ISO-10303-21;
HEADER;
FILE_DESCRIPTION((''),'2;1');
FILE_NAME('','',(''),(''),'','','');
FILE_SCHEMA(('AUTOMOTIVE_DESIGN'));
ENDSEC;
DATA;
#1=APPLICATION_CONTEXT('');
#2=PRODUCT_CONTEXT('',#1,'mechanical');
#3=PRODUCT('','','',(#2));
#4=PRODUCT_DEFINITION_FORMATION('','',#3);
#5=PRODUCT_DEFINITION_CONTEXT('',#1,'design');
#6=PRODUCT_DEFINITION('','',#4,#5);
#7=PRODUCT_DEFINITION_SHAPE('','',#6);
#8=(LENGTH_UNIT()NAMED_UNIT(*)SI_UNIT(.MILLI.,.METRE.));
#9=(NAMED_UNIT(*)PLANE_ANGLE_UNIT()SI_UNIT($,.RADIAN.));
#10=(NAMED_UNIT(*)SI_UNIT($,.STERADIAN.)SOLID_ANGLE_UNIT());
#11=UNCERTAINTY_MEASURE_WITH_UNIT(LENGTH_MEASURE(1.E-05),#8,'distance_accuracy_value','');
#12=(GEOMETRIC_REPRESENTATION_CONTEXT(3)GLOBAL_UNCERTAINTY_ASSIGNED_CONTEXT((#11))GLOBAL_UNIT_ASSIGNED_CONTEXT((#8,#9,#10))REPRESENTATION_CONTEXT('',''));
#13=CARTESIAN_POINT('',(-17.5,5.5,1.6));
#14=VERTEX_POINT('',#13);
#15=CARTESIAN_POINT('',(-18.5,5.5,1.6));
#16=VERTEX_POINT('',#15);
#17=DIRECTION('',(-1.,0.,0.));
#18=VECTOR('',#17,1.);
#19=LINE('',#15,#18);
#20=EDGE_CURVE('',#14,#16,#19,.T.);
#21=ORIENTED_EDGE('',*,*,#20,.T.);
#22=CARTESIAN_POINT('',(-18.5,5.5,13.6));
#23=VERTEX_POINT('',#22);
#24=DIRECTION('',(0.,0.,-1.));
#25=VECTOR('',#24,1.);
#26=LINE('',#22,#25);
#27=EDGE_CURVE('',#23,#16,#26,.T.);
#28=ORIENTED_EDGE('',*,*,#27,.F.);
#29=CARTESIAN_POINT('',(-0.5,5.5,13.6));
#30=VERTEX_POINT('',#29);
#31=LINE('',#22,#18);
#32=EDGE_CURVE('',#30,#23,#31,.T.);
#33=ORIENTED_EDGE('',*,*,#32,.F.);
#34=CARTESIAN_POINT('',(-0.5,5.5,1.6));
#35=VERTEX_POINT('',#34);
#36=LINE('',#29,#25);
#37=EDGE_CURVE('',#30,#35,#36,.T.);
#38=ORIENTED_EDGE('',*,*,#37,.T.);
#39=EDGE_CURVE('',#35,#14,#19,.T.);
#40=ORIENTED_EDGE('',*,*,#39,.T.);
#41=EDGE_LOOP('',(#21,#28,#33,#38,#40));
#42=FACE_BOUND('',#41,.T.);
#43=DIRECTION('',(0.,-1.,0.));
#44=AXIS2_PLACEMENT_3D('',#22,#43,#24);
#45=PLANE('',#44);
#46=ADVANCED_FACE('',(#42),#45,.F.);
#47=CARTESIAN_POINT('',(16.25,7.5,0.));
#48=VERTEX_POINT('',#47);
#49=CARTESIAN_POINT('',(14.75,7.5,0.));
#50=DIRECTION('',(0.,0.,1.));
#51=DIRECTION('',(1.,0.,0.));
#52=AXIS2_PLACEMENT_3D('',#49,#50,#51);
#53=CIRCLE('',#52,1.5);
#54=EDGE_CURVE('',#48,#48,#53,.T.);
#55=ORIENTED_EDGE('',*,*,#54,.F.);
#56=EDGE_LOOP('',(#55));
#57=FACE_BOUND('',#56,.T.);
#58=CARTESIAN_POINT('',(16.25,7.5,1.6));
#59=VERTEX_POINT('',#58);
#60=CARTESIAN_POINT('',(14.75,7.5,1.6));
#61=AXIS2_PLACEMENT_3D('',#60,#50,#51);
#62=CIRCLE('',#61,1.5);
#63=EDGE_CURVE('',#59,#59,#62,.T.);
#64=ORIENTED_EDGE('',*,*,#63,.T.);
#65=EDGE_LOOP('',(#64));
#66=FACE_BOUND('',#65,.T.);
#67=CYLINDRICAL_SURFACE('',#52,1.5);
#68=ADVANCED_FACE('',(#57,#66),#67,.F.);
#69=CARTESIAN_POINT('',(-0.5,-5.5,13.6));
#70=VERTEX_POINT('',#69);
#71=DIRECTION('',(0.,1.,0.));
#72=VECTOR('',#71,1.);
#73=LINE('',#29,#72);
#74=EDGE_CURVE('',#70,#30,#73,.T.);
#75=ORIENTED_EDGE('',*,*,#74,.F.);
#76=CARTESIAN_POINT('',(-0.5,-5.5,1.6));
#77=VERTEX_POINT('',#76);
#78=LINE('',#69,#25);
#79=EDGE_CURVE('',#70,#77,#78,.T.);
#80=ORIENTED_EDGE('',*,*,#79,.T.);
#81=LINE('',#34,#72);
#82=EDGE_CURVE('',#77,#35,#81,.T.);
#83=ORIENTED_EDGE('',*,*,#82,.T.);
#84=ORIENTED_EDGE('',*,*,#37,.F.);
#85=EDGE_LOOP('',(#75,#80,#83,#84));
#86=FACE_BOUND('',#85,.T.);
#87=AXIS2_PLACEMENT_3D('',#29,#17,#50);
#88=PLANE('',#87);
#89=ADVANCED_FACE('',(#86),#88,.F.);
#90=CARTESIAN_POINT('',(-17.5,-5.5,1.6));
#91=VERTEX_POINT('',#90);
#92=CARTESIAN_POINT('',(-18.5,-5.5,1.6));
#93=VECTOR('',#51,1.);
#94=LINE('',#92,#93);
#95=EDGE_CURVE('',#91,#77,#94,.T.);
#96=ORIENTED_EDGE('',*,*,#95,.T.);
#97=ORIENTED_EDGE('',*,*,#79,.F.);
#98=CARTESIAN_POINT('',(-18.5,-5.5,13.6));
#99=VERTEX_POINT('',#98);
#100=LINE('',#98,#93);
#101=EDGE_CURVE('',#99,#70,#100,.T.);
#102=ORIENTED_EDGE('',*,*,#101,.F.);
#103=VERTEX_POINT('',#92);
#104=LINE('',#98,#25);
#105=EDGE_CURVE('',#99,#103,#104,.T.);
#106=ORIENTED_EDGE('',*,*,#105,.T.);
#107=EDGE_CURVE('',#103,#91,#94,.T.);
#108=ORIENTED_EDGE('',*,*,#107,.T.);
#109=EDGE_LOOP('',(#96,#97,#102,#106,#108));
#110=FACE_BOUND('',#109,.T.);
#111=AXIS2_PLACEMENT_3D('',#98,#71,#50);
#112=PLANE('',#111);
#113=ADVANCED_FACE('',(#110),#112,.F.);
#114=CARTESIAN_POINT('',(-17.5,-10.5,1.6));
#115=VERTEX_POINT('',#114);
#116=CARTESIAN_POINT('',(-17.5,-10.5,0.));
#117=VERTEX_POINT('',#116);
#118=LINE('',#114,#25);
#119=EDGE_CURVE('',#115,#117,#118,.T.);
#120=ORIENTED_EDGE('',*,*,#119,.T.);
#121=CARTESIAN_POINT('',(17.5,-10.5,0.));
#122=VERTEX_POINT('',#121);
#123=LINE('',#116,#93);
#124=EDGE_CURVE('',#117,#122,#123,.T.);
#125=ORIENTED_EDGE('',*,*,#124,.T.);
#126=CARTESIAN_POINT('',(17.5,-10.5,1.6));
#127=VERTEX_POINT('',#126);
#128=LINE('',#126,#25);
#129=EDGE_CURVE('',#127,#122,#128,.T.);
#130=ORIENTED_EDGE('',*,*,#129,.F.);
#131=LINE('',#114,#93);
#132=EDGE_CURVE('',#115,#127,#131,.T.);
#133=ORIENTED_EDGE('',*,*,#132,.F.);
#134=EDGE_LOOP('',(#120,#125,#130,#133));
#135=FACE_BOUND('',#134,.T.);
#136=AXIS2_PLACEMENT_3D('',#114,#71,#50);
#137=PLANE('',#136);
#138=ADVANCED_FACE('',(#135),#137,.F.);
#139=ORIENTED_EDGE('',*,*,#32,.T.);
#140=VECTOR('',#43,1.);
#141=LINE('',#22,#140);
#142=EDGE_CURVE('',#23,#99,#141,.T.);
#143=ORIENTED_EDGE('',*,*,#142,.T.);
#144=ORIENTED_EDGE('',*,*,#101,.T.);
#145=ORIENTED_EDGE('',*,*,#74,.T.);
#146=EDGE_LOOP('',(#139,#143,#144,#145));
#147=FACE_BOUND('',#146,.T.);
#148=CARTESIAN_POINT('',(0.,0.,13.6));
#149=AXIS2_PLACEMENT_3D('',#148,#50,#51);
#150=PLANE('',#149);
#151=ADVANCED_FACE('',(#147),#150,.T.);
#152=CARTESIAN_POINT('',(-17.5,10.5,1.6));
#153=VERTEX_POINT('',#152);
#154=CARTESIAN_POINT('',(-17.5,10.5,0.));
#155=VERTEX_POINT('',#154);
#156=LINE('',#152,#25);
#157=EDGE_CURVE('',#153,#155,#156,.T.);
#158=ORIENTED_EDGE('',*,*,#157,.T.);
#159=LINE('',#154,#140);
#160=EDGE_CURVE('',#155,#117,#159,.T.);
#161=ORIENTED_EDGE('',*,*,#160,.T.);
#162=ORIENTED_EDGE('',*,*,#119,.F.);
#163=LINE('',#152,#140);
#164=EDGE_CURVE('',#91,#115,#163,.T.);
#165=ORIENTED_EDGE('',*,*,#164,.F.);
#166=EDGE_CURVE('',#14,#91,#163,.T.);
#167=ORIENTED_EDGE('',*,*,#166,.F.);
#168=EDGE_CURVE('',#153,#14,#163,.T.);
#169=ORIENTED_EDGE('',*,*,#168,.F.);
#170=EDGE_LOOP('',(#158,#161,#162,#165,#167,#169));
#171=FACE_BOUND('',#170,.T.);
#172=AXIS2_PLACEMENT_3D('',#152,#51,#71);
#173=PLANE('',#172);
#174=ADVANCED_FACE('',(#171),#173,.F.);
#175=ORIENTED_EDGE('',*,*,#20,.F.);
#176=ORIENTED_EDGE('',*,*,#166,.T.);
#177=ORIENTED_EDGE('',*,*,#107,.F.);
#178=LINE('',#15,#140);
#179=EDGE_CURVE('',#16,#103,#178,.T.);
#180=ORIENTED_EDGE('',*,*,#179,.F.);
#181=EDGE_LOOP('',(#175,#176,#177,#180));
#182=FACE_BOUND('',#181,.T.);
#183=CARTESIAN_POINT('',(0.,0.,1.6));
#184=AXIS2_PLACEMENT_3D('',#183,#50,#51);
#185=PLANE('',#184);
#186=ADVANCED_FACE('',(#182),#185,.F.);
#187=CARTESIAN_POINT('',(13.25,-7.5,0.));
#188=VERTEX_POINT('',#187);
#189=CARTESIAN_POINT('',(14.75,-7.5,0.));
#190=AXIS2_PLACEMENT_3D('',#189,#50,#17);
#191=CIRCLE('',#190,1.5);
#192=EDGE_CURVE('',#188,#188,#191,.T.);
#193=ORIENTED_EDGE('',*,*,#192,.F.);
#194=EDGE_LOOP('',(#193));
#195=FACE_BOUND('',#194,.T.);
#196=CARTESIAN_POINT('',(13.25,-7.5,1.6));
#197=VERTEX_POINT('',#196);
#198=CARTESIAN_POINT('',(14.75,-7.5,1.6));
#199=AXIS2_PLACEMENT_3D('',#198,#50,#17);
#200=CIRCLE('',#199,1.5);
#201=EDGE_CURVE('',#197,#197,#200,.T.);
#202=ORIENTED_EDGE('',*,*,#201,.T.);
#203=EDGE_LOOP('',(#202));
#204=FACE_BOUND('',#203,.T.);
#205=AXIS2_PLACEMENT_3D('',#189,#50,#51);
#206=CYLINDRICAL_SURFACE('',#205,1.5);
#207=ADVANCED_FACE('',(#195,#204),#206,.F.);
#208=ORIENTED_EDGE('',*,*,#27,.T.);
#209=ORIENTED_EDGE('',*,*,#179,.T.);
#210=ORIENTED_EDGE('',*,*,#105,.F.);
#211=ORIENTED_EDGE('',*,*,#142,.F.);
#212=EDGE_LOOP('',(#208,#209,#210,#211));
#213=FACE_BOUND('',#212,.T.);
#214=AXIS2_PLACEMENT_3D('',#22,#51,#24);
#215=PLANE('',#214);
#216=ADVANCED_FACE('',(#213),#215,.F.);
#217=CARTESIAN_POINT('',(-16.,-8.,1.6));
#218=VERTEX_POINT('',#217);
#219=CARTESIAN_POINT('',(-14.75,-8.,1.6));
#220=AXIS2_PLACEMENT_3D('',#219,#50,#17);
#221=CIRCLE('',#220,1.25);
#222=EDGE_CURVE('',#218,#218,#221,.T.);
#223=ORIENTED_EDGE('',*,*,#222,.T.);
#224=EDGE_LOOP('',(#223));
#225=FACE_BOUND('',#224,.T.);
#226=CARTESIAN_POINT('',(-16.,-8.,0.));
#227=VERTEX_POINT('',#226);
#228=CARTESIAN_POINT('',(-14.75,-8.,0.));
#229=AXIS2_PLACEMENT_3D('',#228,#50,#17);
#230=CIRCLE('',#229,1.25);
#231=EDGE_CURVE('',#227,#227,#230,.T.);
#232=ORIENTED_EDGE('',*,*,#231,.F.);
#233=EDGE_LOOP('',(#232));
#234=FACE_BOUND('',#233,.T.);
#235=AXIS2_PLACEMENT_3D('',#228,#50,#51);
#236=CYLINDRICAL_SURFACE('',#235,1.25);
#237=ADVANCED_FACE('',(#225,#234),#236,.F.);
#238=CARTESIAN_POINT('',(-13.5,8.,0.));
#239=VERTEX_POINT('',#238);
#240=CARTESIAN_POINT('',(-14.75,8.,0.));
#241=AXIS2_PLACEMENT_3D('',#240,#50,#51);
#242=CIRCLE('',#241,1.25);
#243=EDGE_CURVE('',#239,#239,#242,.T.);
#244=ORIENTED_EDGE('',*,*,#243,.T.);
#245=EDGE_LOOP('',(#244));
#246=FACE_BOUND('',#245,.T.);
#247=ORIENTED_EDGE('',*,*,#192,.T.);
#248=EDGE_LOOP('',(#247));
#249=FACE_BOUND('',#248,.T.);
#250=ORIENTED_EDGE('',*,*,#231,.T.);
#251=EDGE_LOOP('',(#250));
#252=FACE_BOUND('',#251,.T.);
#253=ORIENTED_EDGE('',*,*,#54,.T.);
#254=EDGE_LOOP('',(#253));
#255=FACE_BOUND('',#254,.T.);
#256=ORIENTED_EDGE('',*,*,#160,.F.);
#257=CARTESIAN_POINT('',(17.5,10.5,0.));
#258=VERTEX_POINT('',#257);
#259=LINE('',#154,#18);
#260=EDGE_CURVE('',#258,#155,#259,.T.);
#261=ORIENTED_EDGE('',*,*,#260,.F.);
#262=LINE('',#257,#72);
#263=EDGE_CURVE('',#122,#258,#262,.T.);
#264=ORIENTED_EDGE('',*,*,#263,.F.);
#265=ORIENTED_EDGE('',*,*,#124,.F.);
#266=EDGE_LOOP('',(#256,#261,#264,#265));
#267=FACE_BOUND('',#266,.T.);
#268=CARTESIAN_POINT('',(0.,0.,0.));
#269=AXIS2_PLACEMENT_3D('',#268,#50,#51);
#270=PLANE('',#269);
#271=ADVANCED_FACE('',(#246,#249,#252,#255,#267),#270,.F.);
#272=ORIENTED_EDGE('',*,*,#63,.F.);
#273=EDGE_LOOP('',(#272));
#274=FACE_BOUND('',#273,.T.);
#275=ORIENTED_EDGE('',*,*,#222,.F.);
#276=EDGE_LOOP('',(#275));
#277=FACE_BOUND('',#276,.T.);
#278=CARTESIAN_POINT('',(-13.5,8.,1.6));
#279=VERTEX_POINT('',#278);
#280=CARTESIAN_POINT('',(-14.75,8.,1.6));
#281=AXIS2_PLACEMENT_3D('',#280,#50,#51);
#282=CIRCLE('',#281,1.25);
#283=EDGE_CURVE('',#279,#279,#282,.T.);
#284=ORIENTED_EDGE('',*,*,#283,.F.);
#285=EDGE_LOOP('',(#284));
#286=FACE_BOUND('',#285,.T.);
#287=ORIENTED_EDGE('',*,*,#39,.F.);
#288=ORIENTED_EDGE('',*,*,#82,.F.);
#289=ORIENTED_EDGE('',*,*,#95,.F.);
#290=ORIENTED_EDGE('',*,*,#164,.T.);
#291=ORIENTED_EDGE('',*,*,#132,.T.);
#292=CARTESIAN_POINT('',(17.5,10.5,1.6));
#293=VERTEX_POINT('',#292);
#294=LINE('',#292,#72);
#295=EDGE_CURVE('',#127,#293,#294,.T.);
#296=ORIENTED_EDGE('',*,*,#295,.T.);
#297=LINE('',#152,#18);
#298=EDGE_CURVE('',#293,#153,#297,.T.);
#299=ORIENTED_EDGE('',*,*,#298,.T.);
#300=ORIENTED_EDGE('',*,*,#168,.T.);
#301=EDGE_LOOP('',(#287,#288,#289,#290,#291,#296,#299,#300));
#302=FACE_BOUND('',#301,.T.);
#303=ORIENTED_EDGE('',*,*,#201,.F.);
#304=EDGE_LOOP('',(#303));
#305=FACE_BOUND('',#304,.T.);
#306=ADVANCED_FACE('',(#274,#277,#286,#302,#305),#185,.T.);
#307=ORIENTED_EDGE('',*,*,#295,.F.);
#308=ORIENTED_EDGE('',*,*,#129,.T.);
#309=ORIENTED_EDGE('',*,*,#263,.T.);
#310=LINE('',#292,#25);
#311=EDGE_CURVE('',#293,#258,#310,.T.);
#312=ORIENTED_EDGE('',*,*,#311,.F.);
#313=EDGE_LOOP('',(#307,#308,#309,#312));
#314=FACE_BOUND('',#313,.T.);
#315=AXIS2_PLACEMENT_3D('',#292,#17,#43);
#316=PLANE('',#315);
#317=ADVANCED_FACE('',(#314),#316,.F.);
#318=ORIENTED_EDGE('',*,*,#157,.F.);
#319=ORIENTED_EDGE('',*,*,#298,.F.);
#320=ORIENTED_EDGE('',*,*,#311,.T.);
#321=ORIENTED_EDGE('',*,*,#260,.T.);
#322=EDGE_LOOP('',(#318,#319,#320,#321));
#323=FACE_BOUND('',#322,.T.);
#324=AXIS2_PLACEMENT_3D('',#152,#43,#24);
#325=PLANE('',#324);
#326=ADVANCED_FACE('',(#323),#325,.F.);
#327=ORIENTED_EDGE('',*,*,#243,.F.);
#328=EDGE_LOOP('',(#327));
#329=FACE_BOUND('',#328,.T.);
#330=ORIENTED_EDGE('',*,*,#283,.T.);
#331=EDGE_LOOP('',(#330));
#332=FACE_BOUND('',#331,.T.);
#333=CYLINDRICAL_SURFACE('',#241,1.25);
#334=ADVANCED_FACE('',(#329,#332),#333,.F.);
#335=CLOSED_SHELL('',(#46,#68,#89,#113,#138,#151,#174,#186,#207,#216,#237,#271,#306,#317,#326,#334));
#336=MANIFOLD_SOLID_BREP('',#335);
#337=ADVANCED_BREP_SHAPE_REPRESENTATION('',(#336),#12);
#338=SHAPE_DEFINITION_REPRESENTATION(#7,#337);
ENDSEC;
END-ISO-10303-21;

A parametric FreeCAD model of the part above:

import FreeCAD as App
import Part
import Sketcher


def add_polygon(sketch, points):
    """Adds a closed chain of lines whose ends are joined by coincident constraints."""
    first, n = sketch.GeometryCount, len(points)
    for a, b in zip(points, points[1:] + points[:1]):
        sketch.addGeometry(Part.LineSegment(App.Vector(*a, 0), App.Vector(*b, 0)), False)
    for i in range(n):
        sketch.addConstraint(Sketcher.Constraint("Coincident", first + i, 2, first + (i + 1) % n, 1))

doc = App.newDocument("Part")
body = doc.addObject("PartDesign::Body", "Body")

# Sketch on XY plane
sketch1 = doc.addObject("Sketcher::SketchObject", "Sketch")
body.addObject(sketch1)
sketch1.AttachmentSupport = (doc.XY_Plane, [""])
sketch1.MapMode = "FlatFace"
add_polygon(sketch1, [(-17.5, 10.5), (-17.5, -10.5), (17.5, -10.5), (17.5, 10.5)])  # lines 0-3
sketch1.addConstraint([
    Sketcher.Constraint("Vertical", 0),
    Sketcher.Constraint("Horizontal", 1),
    Sketcher.Constraint("Vertical", 2),
    Sketcher.Constraint("Horizontal", 3),
    Sketcher.Constraint("Symmetric", 0, 2, 2, 2, -1, 1),
    Sketcher.Constraint("DistanceX", 1, 1, 1, 2, 35.0),
    Sketcher.Constraint("DistanceY", 0, 2, 0, 1, 21.0),
])
pad1 = doc.addObject("PartDesign::Pad", "Pad")
body.addObject(pad1)
pad1.Profile = sketch1
pad1.Length = 1.6

# Sketch on XY plane
sketch2 = doc.addObject("Sketcher::SketchObject", "Sketch001")
body.addObject(sketch2)
sketch2.AttachmentSupport = (doc.XY_Plane, [""])
sketch2.MapMode = "FlatFace"
sketch2.AttachmentOffset = App.Placement(App.Vector(0, 0, 1.6), App.Rotation())
add_polygon(sketch2, [(-18.5, 5.5), (-18.5, -5.5), (-0.5, -5.5), (-0.5, 5.5)])  # lines 0-3
sketch2.addConstraint([
    Sketcher.Constraint("Vertical", 0),
    Sketcher.Constraint("Horizontal", 1),
    Sketcher.Constraint("Vertical", 2),
    Sketcher.Constraint("Horizontal", 3),
    Sketcher.Constraint("DistanceX", 1, 1, 1, 2, 18.0),
    Sketcher.Constraint("DistanceY", 0, 2, 0, 1, 11.0),
    Sketcher.Constraint("DistanceX", 0, 2, -1, 1, 18.5),
    Sketcher.Constraint("DistanceY", 0, 2, -1, 1, 5.5),
])
pad2 = doc.addObject("PartDesign::Pad", "Pad001")
body.addObject(pad2)
pad2.Profile = sketch2
pad2.Length = 12

# Sketch on XY plane
sketch3 = doc.addObject("Sketcher::SketchObject", "Sketch002")
body.addObject(sketch3)
sketch3.AttachmentSupport = (doc.XY_Plane, [""])
sketch3.MapMode = "FlatFace"
sketch3.AttachmentOffset = App.Placement(App.Vector(0, 0, 1.6), App.Rotation())
sketch3.addGeometry([
    Part.Circle(App.Vector(-14.75, 8, 0), App.Vector(0, 0, 1), 1.25),
    Part.Circle(App.Vector(14.75, 7.5, 0), App.Vector(0, 0, 1), 1.5),
    Part.Circle(App.Vector(14.75, -7.5, 0), App.Vector(0, 0, 1), 1.5),
    Part.Circle(App.Vector(-14.75, -8, 0), App.Vector(0, 0, 1), 1.25),
], False)
sketch3.addConstraint([
    Sketcher.Constraint("Equal", 1, 2),
    Sketcher.Constraint("Equal", 0, 3),
    Sketcher.Constraint("Symmetric", 1, 3, 2, 3, -1),
    Sketcher.Constraint("Symmetric", 0, 3, 3, 3, -1),
    Sketcher.Constraint("Diameter", 1, 3.0),
    Sketcher.Constraint("Diameter", 0, 2.5),
    Sketcher.Constraint("DistanceY", -1, 1, 0, 3, 8.0),
    Sketcher.Constraint("DistanceY", 2, 3, 1, 3, 15.0),
    Sketcher.Constraint("DistanceX", 0, 3, 1, 3, 29.5),
    Sketcher.Constraint("DistanceX", 0, 3, -1, 1, 14.75),
])
pocket1 = doc.addObject("PartDesign::Pocket", "Pocket")
body.addObject(pocket1)
pocket1.Profile = sketch3
pocket1.Type = "ThroughAll"

doc.recompute()
